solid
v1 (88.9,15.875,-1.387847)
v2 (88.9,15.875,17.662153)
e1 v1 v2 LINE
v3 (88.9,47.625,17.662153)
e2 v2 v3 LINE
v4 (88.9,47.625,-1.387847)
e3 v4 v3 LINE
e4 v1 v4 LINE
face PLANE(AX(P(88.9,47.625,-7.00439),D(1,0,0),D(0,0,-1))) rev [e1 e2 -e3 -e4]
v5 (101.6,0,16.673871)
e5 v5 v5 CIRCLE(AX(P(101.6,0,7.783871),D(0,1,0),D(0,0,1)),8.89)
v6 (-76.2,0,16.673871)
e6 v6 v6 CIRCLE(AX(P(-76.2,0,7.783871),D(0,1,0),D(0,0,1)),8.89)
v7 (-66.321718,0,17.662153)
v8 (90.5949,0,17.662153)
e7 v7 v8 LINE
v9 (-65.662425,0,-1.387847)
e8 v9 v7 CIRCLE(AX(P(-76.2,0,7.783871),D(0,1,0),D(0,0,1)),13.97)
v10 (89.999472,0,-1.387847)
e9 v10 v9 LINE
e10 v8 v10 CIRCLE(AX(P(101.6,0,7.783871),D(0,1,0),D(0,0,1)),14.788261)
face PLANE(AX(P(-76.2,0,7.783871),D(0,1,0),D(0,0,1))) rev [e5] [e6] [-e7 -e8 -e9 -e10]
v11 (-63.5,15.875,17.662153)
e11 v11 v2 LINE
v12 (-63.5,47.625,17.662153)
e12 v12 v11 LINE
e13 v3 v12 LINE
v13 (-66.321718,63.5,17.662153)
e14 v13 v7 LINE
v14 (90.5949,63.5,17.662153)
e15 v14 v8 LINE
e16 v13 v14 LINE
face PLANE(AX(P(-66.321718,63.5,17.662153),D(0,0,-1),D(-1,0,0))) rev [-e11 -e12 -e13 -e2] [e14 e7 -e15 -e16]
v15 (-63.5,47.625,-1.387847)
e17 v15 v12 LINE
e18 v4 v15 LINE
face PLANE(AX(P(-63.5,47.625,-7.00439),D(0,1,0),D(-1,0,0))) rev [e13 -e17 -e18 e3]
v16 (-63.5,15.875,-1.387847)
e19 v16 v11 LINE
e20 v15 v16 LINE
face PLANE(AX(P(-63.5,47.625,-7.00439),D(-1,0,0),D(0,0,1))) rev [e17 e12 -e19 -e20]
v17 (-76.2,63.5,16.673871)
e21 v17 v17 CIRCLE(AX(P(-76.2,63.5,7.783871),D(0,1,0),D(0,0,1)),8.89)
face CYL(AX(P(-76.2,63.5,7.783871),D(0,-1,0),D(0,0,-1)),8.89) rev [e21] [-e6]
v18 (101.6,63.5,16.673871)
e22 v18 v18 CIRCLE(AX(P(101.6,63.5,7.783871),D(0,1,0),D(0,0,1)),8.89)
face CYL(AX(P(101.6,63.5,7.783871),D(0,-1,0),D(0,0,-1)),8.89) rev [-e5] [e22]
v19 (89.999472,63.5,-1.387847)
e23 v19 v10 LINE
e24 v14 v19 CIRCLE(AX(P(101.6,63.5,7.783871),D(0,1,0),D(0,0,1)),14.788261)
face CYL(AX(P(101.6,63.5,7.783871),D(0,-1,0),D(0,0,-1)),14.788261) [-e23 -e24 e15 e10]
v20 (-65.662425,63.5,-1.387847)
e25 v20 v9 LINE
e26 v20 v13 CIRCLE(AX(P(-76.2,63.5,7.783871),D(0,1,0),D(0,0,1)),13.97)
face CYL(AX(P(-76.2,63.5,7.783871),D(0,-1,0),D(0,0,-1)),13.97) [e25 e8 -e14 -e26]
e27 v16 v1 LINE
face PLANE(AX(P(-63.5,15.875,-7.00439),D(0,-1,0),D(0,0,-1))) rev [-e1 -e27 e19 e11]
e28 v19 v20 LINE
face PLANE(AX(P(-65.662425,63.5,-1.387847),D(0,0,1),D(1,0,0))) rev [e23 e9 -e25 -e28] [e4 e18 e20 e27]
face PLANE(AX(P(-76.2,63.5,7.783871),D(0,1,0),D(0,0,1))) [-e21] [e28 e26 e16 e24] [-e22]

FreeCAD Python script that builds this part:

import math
import FreeCAD as App
import Part
import Sketcher
from FreeCAD import Vector
Q = App.Units.Quantity

doc = App.newDocument("Part")
body = doc.addObject("PartDesign::Body", "Body")

# Sketch on XZ plane
sketch1 = doc.addObject("Sketcher::SketchObject", "Sketch")
body.addObject(sketch1)
sketch1.AttachmentSupport = (doc.XZ_Plane, [""])
sketch1.MapMode = "FlatFace"
sketch1.addGeometry(Part.LineSegment(Vector(90, -1, 0), Vector(-66, -1, 0)), False)
sketch1.addGeometry(Part.ArcOfCircle(Part.Circle(Vector(-76, 8, 0), Vector(0, 0, 1), 14), math.radians(45), math.radians(319)), False)
sketch1.addGeometry(Part.LineSegment(Vector(-66, 18, 0), Vector(91, 18, 0)), False)
sketch1.addGeometry(Part.ArcOfCircle(Part.Circle(Vector(102, 8, 0), Vector(0, 0, 1), 15), math.radians(-142), math.radians(138)), False)
sketch1.addGeometry(Part.Circle(Vector(102, 8, 0), Vector(0, 0, 1), 9), False)
sketch1.addGeometry(Part.Circle(Vector(-76, 8, 0), Vector(0, 0, 1), 9), False)
sketch1.addConstraint(Sketcher.Constraint("Coincident", 0, 2, 1, 2))
sketch1.addConstraint(Sketcher.Constraint("Coincident", 1, 1, 2, 1))
sketch1.addConstraint(Sketcher.Constraint("Coincident", 2, 2, 3, 2))
sketch1.addConstraint(Sketcher.Constraint("Coincident", 3, 1, 0, 1))
sketch1.addConstraint(Sketcher.Constraint("Horizontal", 0))
sketch1.addConstraint(Sketcher.Constraint("Horizontal", 2))
sketch1.addConstraint(Sketcher.Constraint("Coincident", 4, 3, 3, 3))
sketch1.addConstraint(Sketcher.Constraint("Coincident", 5, 3, 1, 3))
sketch1.addConstraint(Sketcher.Constraint("Equal", 4, 5))
sketch1.addConstraint(Sketcher.Constraint("Horizontal", 1, 3, 3, 3))
sketch1.addConstraint(Sketcher.Constraint("Diameter", 4, Q("0.7 in")))
sketch1.addConstraint(Sketcher.Constraint("Radius", 1, Q("0.55 in")))
sketch1.addConstraint(Sketcher.Constraint("DistanceX", 1, 3, -1, 1, Q("3 in")))
sketch1.addConstraint(Sketcher.Constraint("DistanceX", -1, 1, 3, 3, Q("4 in")))
sketch1.addConstraint(Sketcher.Constraint("DistanceY", 0, 2, 1, 1, Q("0.75 in")))
sketch1.addConstraint(Sketcher.Constraint("Radius", 3, Q("14.788261 mm")))
sketch1.addConstraint(Sketcher.Constraint("DistanceX", 2, 1, 2, 2, Q("156.916619 mm")))
sketch1.addConstraint(Sketcher.Constraint("DistanceY", -1, 1, 1, 3, Q("7.783871 mm")))
pad1 = doc.addObject("PartDesign::Pad", "Pad")
body.addObject(pad1)
pad1.Profile = sketch1
pad1.Length = Q("2.5 in")
pad1.Reversed = True

# Sketch on XY plane
sketch2 = doc.addObject("Sketcher::SketchObject", "Sketch001")
body.addObject(sketch2)
sketch2.AttachmentSupport = (doc.XY_Plane, [""])
sketch2.MapMode = "FlatFace"
sketch2.AttachmentOffset = App.Placement(Vector(0, 0, 17.662153), App.Rotation())
sketch2.addGeometry(Part.LineSegment(Vector(-64, 48, 0), Vector(-64, 16, 0)), False)
sketch2.addGeometry(Part.LineSegment(Vector(-64, 16, 0), Vector(89, 16, 0)), False)
sketch2.addGeometry(Part.LineSegment(Vector(89, 16, 0), Vector(89, 48, 0)), False)
sketch2.addGeometry(Part.LineSegment(Vector(89, 48, 0), Vector(-64, 48, 0)), False)
sketch2.addConstraint(Sketcher.Constraint("Coincident", 0, 2, 1, 1))
sketch2.addConstraint(Sketcher.Constraint("Coincident", 1, 2, 2, 1))
sketch2.addConstraint(Sketcher.Constraint("Coincident", 2, 2, 3, 1))
sketch2.addConstraint(Sketcher.Constraint("Coincident", 3, 2, 0, 1))
sketch2.addConstraint(Sketcher.Constraint("Vertical", 0))
sketch2.addConstraint(Sketcher.Constraint("Horizontal", 1))
sketch2.addConstraint(Sketcher.Constraint("Vertical", 2))
sketch2.addConstraint(Sketcher.Constraint("Horizontal", 3))
sketch2.addConstraint(Sketcher.Constraint("DistanceX", 1, 1, 1, 2, Q("6 in")))
sketch2.addConstraint(Sketcher.Constraint("DistanceY", 0, 2, 0, 1, Q("1.25 in")))
sketch2.addConstraint(Sketcher.Constraint("DistanceX", 0, 2, -1, 1, Q("2.5 in")))
sketch2.addConstraint(Sketcher.Constraint("DistanceY", -1, 1, 0, 2, Q("0.625 in")))
pocket1 = doc.addObject("PartDesign::Pocket", "Pocket")
body.addObject(pocket1)
pocket1.Profile = sketch2
pocket1.Type = "ThroughAll"

doc.recompute()
